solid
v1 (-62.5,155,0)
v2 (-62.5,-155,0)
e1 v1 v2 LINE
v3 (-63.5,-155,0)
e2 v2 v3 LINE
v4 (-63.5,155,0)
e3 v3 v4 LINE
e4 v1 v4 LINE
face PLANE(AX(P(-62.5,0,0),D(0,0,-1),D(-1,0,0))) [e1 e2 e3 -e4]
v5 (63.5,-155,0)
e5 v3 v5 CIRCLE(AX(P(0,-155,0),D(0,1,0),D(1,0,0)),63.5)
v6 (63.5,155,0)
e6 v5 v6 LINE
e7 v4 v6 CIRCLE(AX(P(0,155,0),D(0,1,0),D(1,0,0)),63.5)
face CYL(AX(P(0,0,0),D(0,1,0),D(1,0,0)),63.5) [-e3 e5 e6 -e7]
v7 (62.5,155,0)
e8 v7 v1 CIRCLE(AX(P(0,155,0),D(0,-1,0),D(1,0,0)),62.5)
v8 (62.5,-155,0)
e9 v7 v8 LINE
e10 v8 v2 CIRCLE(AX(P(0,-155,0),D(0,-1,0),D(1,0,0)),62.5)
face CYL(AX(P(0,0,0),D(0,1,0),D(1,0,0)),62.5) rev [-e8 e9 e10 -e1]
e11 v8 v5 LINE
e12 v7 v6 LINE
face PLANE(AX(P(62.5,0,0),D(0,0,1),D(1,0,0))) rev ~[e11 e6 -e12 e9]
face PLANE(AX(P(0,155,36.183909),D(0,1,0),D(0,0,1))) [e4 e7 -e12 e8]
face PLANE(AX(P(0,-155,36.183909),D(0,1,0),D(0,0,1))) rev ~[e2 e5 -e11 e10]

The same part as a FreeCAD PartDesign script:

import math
import FreeCAD as App
import Part
import Sketcher

doc = App.newDocument("Part")
body = doc.addObject("PartDesign::Body", "Body")

sketch1 = doc.addObject("Sketcher::SketchObject", "Sketch")
body.addObject(sketch1)
sketch1.AttachmentSupport = (doc.XZ_Plane, [""])
sketch1.MapMode = "FlatFace"
sketch1.addGeometry(Part.LineSegment(App.Vector(-63.5, 0, 0), App.Vector(-62.5, 0, 0)), False)
sketch1.addGeometry(Part.ArcOfCircle(Part.Circle(App.Vector(0, 0, 0), App.Vector(0, 0, 1), 62.5), math.radians(0), math.radians(180)), False)
sketch1.addGeometry(Part.LineSegment(App.Vector(62.5, 0, 0), App.Vector(63.5, 0, 0)), False)
sketch1.addGeometry(Part.ArcOfCircle(Part.Circle(App.Vector(0, 0, 0), App.Vector(0, 0, 1), 63.5), math.radians(0), math.radians(180)), False)
sketch1.addConstraint(Sketcher.Constraint("Coincident", 0, 2, 1, 2))
sketch1.addConstraint(Sketcher.Constraint("Coincident", 1, 1, 2, 1))
sketch1.addConstraint(Sketcher.Constraint("Coincident", 2, 2, 3, 1))
sketch1.addConstraint(Sketcher.Constraint("Coincident", 3, 2, 0, 1))
sketch1.addConstraint(Sketcher.Constraint("Horizontal", 0))
sketch1.addConstraint(Sketcher.Constraint("Horizontal", 2))
sketch1.addConstraint(Sketcher.Constraint("Coincident", 1, 3, -1, 1))
sketch1.addConstraint(Sketcher.Constraint("Coincident", 3, 3, -1, 1))
sketch1.addConstraint(Sketcher.Constraint("PointOnObject", 0, 2, -1))
sketch1.addConstraint(Sketcher.Constraint("PointOnObject", 1, 1, -1))
sketch1.addConstraint(Sketcher.Constraint("Radius", 1, 62.5))
sketch1.addConstraint(Sketcher.Constraint("Radius", 3, 63.5))
pad1 = doc.addObject("PartDesign::Pad", "Pad")
body.addObject(pad1)
pad1.Profile = sketch1
pad1.Length = 310
pad1.Midplane = True

doc.recompute()
